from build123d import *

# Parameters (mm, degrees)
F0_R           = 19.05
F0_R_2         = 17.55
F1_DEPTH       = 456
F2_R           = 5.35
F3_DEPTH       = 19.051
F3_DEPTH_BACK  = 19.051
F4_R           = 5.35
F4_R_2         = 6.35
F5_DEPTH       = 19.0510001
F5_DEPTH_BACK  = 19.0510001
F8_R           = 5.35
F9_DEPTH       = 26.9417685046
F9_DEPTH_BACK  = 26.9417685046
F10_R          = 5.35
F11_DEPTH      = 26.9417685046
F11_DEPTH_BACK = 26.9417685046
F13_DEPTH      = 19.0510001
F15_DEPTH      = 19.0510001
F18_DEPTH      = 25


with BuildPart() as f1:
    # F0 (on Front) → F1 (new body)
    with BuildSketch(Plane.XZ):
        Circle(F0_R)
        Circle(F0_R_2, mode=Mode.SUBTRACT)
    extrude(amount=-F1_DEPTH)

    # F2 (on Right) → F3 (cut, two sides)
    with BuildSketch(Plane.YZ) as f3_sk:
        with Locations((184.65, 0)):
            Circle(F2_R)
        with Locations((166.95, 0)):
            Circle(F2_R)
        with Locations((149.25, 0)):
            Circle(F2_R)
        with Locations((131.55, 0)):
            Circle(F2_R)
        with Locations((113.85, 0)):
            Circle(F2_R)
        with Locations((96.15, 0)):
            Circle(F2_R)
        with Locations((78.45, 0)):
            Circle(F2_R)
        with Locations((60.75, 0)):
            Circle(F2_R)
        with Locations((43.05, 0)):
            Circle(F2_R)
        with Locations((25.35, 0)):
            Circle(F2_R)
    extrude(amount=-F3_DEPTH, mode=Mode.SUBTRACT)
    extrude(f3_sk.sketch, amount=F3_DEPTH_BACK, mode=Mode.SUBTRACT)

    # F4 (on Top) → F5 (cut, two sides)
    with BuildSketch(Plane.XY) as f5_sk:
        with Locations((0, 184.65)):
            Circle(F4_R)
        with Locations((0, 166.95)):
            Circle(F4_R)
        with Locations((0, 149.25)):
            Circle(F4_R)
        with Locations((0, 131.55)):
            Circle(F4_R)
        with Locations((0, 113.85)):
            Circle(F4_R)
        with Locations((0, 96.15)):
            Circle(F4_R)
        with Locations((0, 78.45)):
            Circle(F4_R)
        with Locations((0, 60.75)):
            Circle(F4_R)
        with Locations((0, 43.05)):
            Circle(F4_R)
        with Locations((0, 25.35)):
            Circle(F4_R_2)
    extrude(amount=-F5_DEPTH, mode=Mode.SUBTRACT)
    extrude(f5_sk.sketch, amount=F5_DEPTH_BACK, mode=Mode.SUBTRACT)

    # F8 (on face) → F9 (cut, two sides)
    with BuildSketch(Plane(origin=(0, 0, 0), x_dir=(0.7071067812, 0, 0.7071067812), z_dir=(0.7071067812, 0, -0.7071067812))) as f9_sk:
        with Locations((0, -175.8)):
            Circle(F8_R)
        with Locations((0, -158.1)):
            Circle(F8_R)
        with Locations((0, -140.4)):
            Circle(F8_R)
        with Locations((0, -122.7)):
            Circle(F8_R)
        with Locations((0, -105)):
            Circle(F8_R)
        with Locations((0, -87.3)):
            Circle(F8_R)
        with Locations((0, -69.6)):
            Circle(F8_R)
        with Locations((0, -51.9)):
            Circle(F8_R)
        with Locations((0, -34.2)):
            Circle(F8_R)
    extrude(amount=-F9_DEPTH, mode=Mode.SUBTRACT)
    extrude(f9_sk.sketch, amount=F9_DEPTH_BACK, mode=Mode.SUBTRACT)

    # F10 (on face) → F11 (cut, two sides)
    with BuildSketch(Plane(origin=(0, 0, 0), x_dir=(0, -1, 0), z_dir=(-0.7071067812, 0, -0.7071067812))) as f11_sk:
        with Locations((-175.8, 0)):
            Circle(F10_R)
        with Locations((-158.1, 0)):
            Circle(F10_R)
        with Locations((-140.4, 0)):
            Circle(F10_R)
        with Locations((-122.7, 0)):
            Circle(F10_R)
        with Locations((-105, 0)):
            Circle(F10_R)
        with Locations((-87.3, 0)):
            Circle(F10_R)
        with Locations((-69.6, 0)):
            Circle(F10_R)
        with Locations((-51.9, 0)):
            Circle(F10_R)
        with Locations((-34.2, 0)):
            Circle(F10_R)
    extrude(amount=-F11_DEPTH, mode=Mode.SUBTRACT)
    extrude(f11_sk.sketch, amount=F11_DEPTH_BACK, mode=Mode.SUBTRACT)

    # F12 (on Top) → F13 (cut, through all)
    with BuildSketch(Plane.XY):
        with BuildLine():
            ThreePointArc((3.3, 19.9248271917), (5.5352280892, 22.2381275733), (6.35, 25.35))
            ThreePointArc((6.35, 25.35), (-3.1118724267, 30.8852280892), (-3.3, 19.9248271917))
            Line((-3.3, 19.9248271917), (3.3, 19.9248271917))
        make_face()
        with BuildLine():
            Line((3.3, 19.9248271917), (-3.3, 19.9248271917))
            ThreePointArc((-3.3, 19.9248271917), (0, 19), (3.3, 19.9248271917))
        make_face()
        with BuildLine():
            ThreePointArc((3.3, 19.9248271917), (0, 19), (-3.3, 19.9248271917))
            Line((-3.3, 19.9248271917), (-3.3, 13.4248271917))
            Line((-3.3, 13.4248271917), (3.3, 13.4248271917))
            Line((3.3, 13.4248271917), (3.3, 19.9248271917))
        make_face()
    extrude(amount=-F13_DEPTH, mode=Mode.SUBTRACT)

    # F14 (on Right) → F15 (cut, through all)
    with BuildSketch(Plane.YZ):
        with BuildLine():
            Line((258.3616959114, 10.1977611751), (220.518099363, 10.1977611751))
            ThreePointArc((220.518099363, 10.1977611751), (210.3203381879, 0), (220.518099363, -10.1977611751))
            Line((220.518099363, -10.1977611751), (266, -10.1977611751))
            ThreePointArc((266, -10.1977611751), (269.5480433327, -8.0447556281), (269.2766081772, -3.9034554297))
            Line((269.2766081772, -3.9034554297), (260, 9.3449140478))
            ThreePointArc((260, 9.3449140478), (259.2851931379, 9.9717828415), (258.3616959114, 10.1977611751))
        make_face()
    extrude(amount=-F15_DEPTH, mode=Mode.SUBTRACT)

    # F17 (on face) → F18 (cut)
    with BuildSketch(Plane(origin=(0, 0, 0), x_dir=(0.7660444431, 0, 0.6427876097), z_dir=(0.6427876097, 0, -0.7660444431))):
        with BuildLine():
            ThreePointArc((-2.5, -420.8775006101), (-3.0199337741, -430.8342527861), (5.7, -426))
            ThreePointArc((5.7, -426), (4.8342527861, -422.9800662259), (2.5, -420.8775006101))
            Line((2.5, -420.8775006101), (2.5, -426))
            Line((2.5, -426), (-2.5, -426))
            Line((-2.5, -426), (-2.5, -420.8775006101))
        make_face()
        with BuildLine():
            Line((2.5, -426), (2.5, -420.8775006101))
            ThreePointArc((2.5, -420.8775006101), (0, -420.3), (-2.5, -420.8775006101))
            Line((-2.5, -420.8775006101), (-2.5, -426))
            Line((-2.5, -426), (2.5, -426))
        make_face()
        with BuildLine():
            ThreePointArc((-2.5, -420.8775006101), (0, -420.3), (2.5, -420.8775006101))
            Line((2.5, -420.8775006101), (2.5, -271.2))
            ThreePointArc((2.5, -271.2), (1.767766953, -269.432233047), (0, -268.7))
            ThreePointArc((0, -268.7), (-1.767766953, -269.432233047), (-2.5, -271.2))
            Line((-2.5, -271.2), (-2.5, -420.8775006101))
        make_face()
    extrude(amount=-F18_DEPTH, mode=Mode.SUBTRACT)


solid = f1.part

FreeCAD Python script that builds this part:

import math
import FreeCAD as App
import Part
import Sketcher

V = App.Vector
Q = App.Units.Quantity

doc = App.newDocument("Part")
params = doc.addObject("Spreadsheet::Sheet", "Params")
for row, (alias, value) in enumerate([
    ("sketch1_diameter", "38.1 mm"),
    ("sketch1_diameter2", "35.1 mm"),
    ("pad1_length", "456 mm"),
    ("sketch2_diameter", "10.7 mm"),
    ("sketch3_diameter", "10.7 mm"),
    ("sketch3_diameter2", "12.7 mm"),
    ("sketch4_diameter", "10.7 mm"),
    ("sketch5_diameter", "10.7 mm"),
    ("sketch6_radius", "6.35 mm"),
    ("sketch6_width", "6.6 mm"),
    ("sketch6_height", "6.5 mm"),
    ("sketch7_radius", "4 mm"),
    ("sketch7_radius2", "2 mm"),
    ("sketch8_radius", "5.7 mm"),
    ("sketch8_radius2", "2.5 mm"),
    ("pocket7_length", "25 mm"),
], start=1):
    params.set(f"A{row}", alias)
    params.set(f"B{row}", "=" + value)
    params.setAlias(f"B{row}", alias)

body = doc.addObject("PartDesign::Body", "Body")

sketch1 = body.newObject("Sketcher::SketchObject", "Sketch")
sketch1.AttachmentSupport = (doc.getObject("XZ_Plane"), [""])
sketch1.MapMode = "FlatFace"
sketch1.addGeometry([
    Part.Circle(V(0, 0, 0), V(0, 0, 1), 19.05),
    Part.Circle(V(0, 0, 0), V(0, 0, 1), 17.55),
], False)
sketch1.addConstraint([
    Sketcher.Constraint("Coincident", 0, 3, -1, 1),
    Sketcher.Constraint("Coincident", 1, 3, -1, 1),
    Sketcher.Constraint("Diameter", 0, Q("38.1 mm")),
    Sketcher.Constraint("Diameter", 1, Q("35.1 mm")),
])
sketch1.setExpression("Constraints[2]", "Params.sketch1_diameter")
sketch1.setExpression("Constraints[3]", "Params.sketch1_diameter2")
pad1 = body.newObject("PartDesign::Pad", "Pad")
pad1.Profile = sketch1
pad1.setExpression("Length", "Params.pad1_length")
pad1.Reversed = True

sketch2 = body.newObject("Sketcher::SketchObject", "Sketch001")
sketch2.AttachmentSupport = (doc.getObject("YZ_Plane"), [""])
sketch2.MapMode = "FlatFace"
sketch2.addGeometry([
    Part.Circle(V(184.65, 0, 0), V(0, 0, 1), 5.35),
    Part.Circle(V(166.95, 0, 0), V(0, 0, 1), 5.35),
    Part.Circle(V(149.25, 0, 0), V(0, 0, 1), 5.35),
    Part.Circle(V(131.55, 0, 0), V(0, 0, 1), 5.35),
    Part.Circle(V(113.85, 0, 0), V(0, 0, 1), 5.35),
    Part.Circle(V(96.15, 0, 0), V(0, 0, 1), 5.35),
    Part.Circle(V(78.45, 0, 0), V(0, 0, 1), 5.35),
    Part.Circle(V(60.75, 0, 0), V(0, 0, 1), 5.35),
    Part.Circle(V(43.05, 0, 0), V(0, 0, 1), 5.35),
    Part.Circle(V(25.35, 0, 0), V(0, 0, 1), 5.35),
], False)
sketch2.addConstraint([
    Sketcher.Constraint("Equal", 0, 1),
    Sketcher.Constraint("Equal", 1, 2),
    Sketcher.Constraint("Equal", 2, 3),
    Sketcher.Constraint("Equal", 3, 4),
    Sketcher.Constraint("Equal", 4, 5),
    Sketcher.Constraint("Equal", 5, 6),
    Sketcher.Constraint("Equal", 6, 7),
    Sketcher.Constraint("Equal", 7, 8),
    Sketcher.Constraint("Equal", 8, 9),
    Sketcher.Constraint("PointOnObject", 0, 3, -1),
    Sketcher.Constraint("PointOnObject", 1, 3, -1),
    Sketcher.Constraint("PointOnObject", 2, 3, -1),
    Sketcher.Constraint("PointOnObject", 3, 3, -1),
    Sketcher.Constraint("PointOnObject", 4, 3, -1),
    Sketcher.Constraint("PointOnObject", 5, 3, -1),
    Sketcher.Constraint("PointOnObject", 6, 3, -1),
    Sketcher.Constraint("PointOnObject", 7, 3, -1),
    Sketcher.Constraint("PointOnObject", 8, 3, -1),
    Sketcher.Constraint("PointOnObject", 9, 3, -1),
    Sketcher.Constraint("Diameter", 0, Q("10.7 mm")),
    Sketcher.Constraint("DistanceX", 1, 3, 0, 3, Q("17.7 mm")),
    Sketcher.Constraint("DistanceX", 2, 3, 1, 3, Q("17.7 mm")),
    Sketcher.Constraint("DistanceX", 3, 3, 2, 3, Q("17.7 mm")),
    Sketcher.Constraint("DistanceX", 4, 3, 3, 3, Q("17.7 mm")),
    Sketcher.Constraint("DistanceX", 5, 3, 4, 3, Q("17.7 mm")),
    Sketcher.Constraint("DistanceX", 6, 3, 5, 3, Q("17.7 mm")),
    Sketcher.Constraint("DistanceX", 7, 3, 6, 3, Q("17.7 mm")),
    Sketcher.Constraint("DistanceX", 8, 3, 7, 3, Q("17.7 mm")),
    Sketcher.Constraint("DistanceX", 9, 3, 8, 3, Q("17.7 mm")),
    Sketcher.Constraint("DistanceX", -1, 1, 0, 3, Q("184.65 mm")),
])
sketch2.setExpression("Constraints[19]", "Params.sketch2_diameter")
pocket1 = body.newObject("PartDesign::Pocket", "Pocket")
pocket1.Profile = sketch2
pocket1.Type = "ThroughAll"
pocket1.Midplane = True

sketch3 = body.newObject("Sketcher::SketchObject", "Sketch002")
sketch3.AttachmentSupport = (doc.getObject("XY_Plane"), [""])
sketch3.MapMode = "FlatFace"
sketch3.addGeometry([
    Part.Circle(V(0, 184.65, 0), V(0, 0, 1), 5.35),
    Part.Circle(V(0, 166.95, 0), V(0, 0, 1), 5.35),
    Part.Circle(V(0, 149.25, 0), V(0, 0, 1), 5.35),
    Part.Circle(V(0, 131.55, 0), V(0, 0, 1), 5.35),
    Part.Circle(V(0, 113.85, 0), V(0, 0, 1), 5.35),
    Part.Circle(V(0, 96.15, 0), V(0, 0, 1), 5.35),
    Part.Circle(V(0, 78.45, 0), V(0, 0, 1), 5.35),
    Part.Circle(V(0, 60.75, 0), V(0, 0, 1), 5.35),
    Part.Circle(V(0, 43.05, 0), V(0, 0, 1), 5.35),
    Part.Circle(V(0, 25.35, 0), V(0, 0, 1), 6.35),
], False)
sketch3.addConstraint([
    Sketcher.Constraint("Equal", 0, 1),
    Sketcher.Constraint("Equal", 1, 2),
    Sketcher.Constraint("Equal", 2, 3),
    Sketcher.Constraint("Equal", 3, 4),
    Sketcher.Constraint("Equal", 4, 5),
    Sketcher.Constraint("Equal", 5, 6),
    Sketcher.Constraint("Equal", 6, 7),
    Sketcher.Constraint("Equal", 7, 8),
    Sketcher.Constraint("PointOnObject", 0, 3, -2),
    Sketcher.Constraint("PointOnObject", 1, 3, -2),
    Sketcher.Constraint("PointOnObject", 2, 3, -2),
    Sketcher.Constraint("PointOnObject", 3, 3, -2),
    Sketcher.Constraint("PointOnObject", 4, 3, -2),
    Sketcher.Constraint("PointOnObject", 5, 3, -2),
    Sketcher.Constraint("PointOnObject", 6, 3, -2),
    Sketcher.Constraint("PointOnObject", 7, 3, -2),
    Sketcher.Constraint("PointOnObject", 8, 3, -2),
    Sketcher.Constraint("PointOnObject", 9, 3, -2),
    Sketcher.Constraint("Diameter", 0, Q("10.7 mm")),
    Sketcher.Constraint("Diameter", 9, Q("12.7 mm")),
    Sketcher.Constraint("DistanceY", 1, 3, 0, 3, Q("17.7 mm")),
    Sketcher.Constraint("DistanceY", 2, 3, 1, 3, Q("17.7 mm")),
    Sketcher.Constraint("DistanceY", 3, 3, 2, 3, Q("17.7 mm")),
    Sketcher.Constraint("DistanceY", 4, 3, 3, 3, Q("17.7 mm")),
    Sketcher.Constraint("DistanceY", 5, 3, 4, 3, Q("17.7 mm")),
    Sketcher.Constraint("DistanceY", 6, 3, 5, 3, Q("17.7 mm")),
    Sketcher.Constraint("DistanceY", 7, 3, 6, 3, Q("17.7 mm")),
    Sketcher.Constraint("DistanceY", 8, 3, 7, 3, Q("17.7 mm")),
    Sketcher.Constraint("DistanceY", 9, 3, 8, 3, Q("17.7 mm")),
    Sketcher.Constraint("DistanceY", -1, 1, 0, 3, Q("184.65 mm")),
])
sketch3.setExpression("Constraints[18]", "Params.sketch3_diameter")
sketch3.setExpression("Constraints[19]", "Params.sketch3_diameter2")
pocket2 = body.newObject("PartDesign::Pocket", "Pocket001")
pocket2.Profile = sketch3
pocket2.Type = "ThroughAll"
pocket2.Midplane = True

sketch4 = body.newObject("Sketcher::SketchObject", "Sketch003")
sketch4.Placement = App.Placement(V(0, 0, 0), App.Rotation(V(0.707106781, 0, 0.707106781), V(0, -0.999999999, 0), V(0.707106781, 0, -0.707106781), "ZXY"))
sketch4.addGeometry([
    Part.Circle(V(0, -175.8, 0), V(0, 0, 1), 5.35),
    Part.Circle(V(0, -158.1, 0), V(0, 0, 1), 5.35),
    Part.Circle(V(0, -140.4, 0), V(0, 0, 1), 5.35),
    Part.Circle(V(0, -122.7, 0), V(0, 0, 1), 5.35),
    Part.Circle(V(0, -105, 0), V(0, 0, 1), 5.35),
    Part.Circle(V(0, -87.3, 0), V(0, 0, 1), 5.35),
    Part.Circle(V(0, -69.6, 0), V(0, 0, 1), 5.35),
    Part.Circle(V(0, -51.9, 0), V(0, 0, 1), 5.35),
    Part.Circle(V(0, -34.2, 0), V(0, 0, 1), 5.35),
], False)
sketch4.addConstraint([
    Sketcher.Constraint("Equal", 0, 1),
    Sketcher.Constraint("Equal", 1, 2),
    Sketcher.Constraint("Equal", 2, 3),
    Sketcher.Constraint("Equal", 3, 4),
    Sketcher.Constraint("Equal", 4, 5),
    Sketcher.Constraint("Equal", 5, 6),
    Sketcher.Constraint("Equal", 6, 7),
    Sketcher.Constraint("Equal", 7, 8),
    Sketcher.Constraint("PointOnObject", 0, 3, -2),
    Sketcher.Constraint("PointOnObject", 1, 3, -2),
    Sketcher.Constraint("PointOnObject", 2, 3, -2),
    Sketcher.Constraint("PointOnObject", 3, 3, -2),
    Sketcher.Constraint("PointOnObject", 4, 3, -2),
    Sketcher.Constraint("PointOnObject", 5, 3, -2),
    Sketcher.Constraint("PointOnObject", 6, 3, -2),
    Sketcher.Constraint("PointOnObject", 7, 3, -2),
    Sketcher.Constraint("PointOnObject", 8, 3, -2),
    Sketcher.Constraint("Diameter", 0, Q("10.7 mm")),
    Sketcher.Constraint("DistanceY", 4, 3, -1, 1, Q("105 mm")),
    Sketcher.Constraint("DistanceY", 0, 3, -1, 1, Q("175.8 mm")),
    Sketcher.Constraint("DistanceY", 1, 3, -1, 1, Q("158.1 mm")),
    Sketcher.Constraint("DistanceY", 2, 3, -1, 1, Q("140.4 mm")),
    Sketcher.Constraint("DistanceY", 3, 3, -1, 1, Q("122.7 mm")),
    Sketcher.Constraint("DistanceY", 5, 3, -1, 1, Q("87.3 mm")),
    Sketcher.Constraint("DistanceY", 6, 3, -1, 1, Q("69.6 mm")),
    Sketcher.Constraint("DistanceY", 7, 3, -1, 1, Q("51.9 mm")),
    Sketcher.Constraint("DistanceY", 8, 3, -1, 1, Q("34.2 mm")),
])
sketch4.setExpression("Constraints[17]", "Params.sketch4_diameter")
pocket3 = body.newObject("PartDesign::Pocket", "Pocket002")
pocket3.Profile = sketch4
pocket3.Type = "ThroughAll"
pocket3.Midplane = True

sketch5 = body.newObject("Sketcher::SketchObject", "Sketch004")
sketch5.Placement = App.Placement(V(0, 0, 0), App.Rotation(V(0, -1, 0), V(-0.707106781, 0, 0.707106781), V(-0.707106781, 0, -0.707106781), "ZXY"))
sketch5.addGeometry([
    Part.Circle(V(-175.8, 0, 0), V(0, 0, 1), 5.35),
    Part.Circle(V(-158.1, 0, 0), V(0, 0, 1), 5.35),
    Part.Circle(V(-140.4, 0, 0), V(0, 0, 1), 5.35),
    Part.Circle(V(-122.7, 0, 0), V(0, 0, 1), 5.35),
    Part.Circle(V(-105, 0, 0), V(0, 0, 1), 5.35),
    Part.Circle(V(-87.3, 0, 0), V(0, 0, 1), 5.35),
    Part.Circle(V(-69.6, 0, 0), V(0, 0, 1), 5.35),
    Part.Circle(V(-51.9, 0, 0), V(0, 0, 1), 5.35),
    Part.Circle(V(-34.2, 0, 0), V(0, 0, 1), 5.35),
], False)
sketch5.addConstraint([
    Sketcher.Constraint("Equal", 0, 1),
    Sketcher.Constraint("Equal", 1, 2),
    Sketcher.Constraint("Equal", 2, 3),
    Sketcher.Constraint("Equal", 3, 4),
    Sketcher.Constraint("Equal", 4, 5),
    Sketcher.Constraint("Equal", 5, 6),
    Sketcher.Constraint("Equal", 6, 7),
    Sketcher.Constraint("Equal", 7, 8),
    Sketcher.Constraint("PointOnObject", 0, 3, -1),
    Sketcher.Constraint("PointOnObject", 1, 3, -1),
    Sketcher.Constraint("PointOnObject", 2, 3, -1),
    Sketcher.Constraint("PointOnObject", 3, 3, -1),
    Sketcher.Constraint("PointOnObject", 4, 3, -1),
    Sketcher.Constraint("PointOnObject", 5, 3, -1),
    Sketcher.Constraint("PointOnObject", 6, 3, -1),
    Sketcher.Constraint("PointOnObject", 7, 3, -1),
    Sketcher.Constraint("PointOnObject", 8, 3, -1),
    Sketcher.Constraint("Diameter", 0, Q("10.7 mm")),
    Sketcher.Constraint("DistanceX", 4, 3, -1, 1, Q("105 mm")),
    Sketcher.Constraint("DistanceX", 0, 3, -1, 1, Q("175.8 mm")),
    Sketcher.Constraint("DistanceX", 1, 3, -1, 1, Q("158.1 mm")),
    Sketcher.Constraint("DistanceX", 2, 3, -1, 1, Q("140.4 mm")),
    Sketcher.Constraint("DistanceX", 3, 3, -1, 1, Q("122.7 mm")),
    Sketcher.Constraint("DistanceX", 5, 3, -1, 1, Q("87.3 mm")),
    Sketcher.Constraint("DistanceX", 6, 3, -1, 1, Q("69.6 mm")),
    Sketcher.Constraint("DistanceX", 7, 3, -1, 1, Q("51.9 mm")),
    Sketcher.Constraint("DistanceX", 8, 3, -1, 1, Q("34.2 mm")),
])
sketch5.setExpression("Constraints[17]", "Params.sketch5_diameter")
pocket4 = body.newObject("PartDesign::Pocket", "Pocket003")
pocket4.Profile = sketch5
pocket4.Type = "ThroughAll"
pocket4.Midplane = True

sketch6 = body.newObject("Sketcher::SketchObject", "Sketch005")
sketch6.AttachmentSupport = (doc.getObject("XY_Plane"), [""])
sketch6.MapMode = "FlatFace"
sketch6.addGeometry([
    Part.ArcOfCircle(Part.Circle(V(0, 25.35, 0), V(0, 0, 1), 6.35), math.radians(-58.688873), math.radians(0)),
    Part.ArcOfCircle(Part.Circle(V(0, 25.35, 0), V(0, 0, 1), 6.35), math.radians(0), math.radians(238.688873)),
    Part.LineSegment(V(-3.3, 19.924827, 0), V(-3.3, 13.424827, 0)),
    Part.LineSegment(V(-3.3, 13.424827, 0), V(3.3, 13.424827, 0)),
    Part.LineSegment(V(3.3, 13.424827, 0), V(3.3, 19.924827, 0)),
], False)
sketch6.addConstraint([
    Sketcher.Constraint("Tangent", 0, 2, 1, 1),
    Sketcher.Constraint("Coincident", 1, 2, 2, 1),
    Sketcher.Constraint("Coincident", 2, 2, 3, 1),
    Sketcher.Constraint("Coincident", 3, 2, 4, 1),
    Sketcher.Constraint("Coincident", 4, 2, 0, 1),
    Sketcher.Constraint("Vertical", 2),
    Sketcher.Constraint("Horizontal", 3),
    Sketcher.Constraint("Vertical", 4),
    Sketcher.Constraint("Equal", 0, 1),
    Sketcher.Constraint("Symmetric", 1, 2, 4, 2, -2),
    Sketcher.Constraint("Horizontal", 1, 3, 0, 2),
    Sketcher.Constraint("Radius", 0, Q("6.35 mm")),
    Sketcher.Constraint("DistanceX", 3, 1, 3, 2, Q("6.6 mm")),
    Sketcher.Constraint("DistanceY", 2, 2, 2, 1, Q("6.5 mm")),
    Sketcher.Constraint("DistanceY", -1, 1, 0, 3, Q("25.35 mm")),
])
sketch6.setExpression("Constraints[11]", "Params.sketch6_radius")
sketch6.setExpression("Constraints[12]", "Params.sketch6_width")
sketch6.setExpression("Constraints[13]", "Params.sketch6_height")
pocket5 = body.newObject("PartDesign::Pocket", "Pocket004")
pocket5.Profile = sketch6
pocket5.Type = "ThroughAll"

sketch7 = body.newObject("Sketcher::SketchObject", "Sketch006")
sketch7.AttachmentSupport = (doc.getObject("YZ_Plane"), [""])
sketch7.MapMode = "FlatFace"
sketch7.addGeometry([
    Part.LineSegment(V(258.361696, 10.197761, 0), V(220.518099, 10.197761, 0)),
    Part.ArcOfCircle(Part.Circle(V(220.518099, 0, 0), V(0, 0, 1), 10.197761), math.radians(90), math.radians(270)),
    Part.LineSegment(V(220.518099, -10.197761, 0), V(266, -10.197761, 0)),
    Part.ArcOfCircle(Part.Circle(V(266, -6.197761, 0), V(0, 0, 1), 4), math.radians(-90), math.radians(35)),
    Part.LineSegment(V(269.276608, -3.903455, 0), V(260, 9.344914, 0)),
    Part.ArcOfCircle(Part.Circle(V(258.361696, 8.197761, 0), V(0, 0, 1), 2), math.radians(35), math.radians(90)),
], False)
sketch7.addConstraint([
    Sketcher.Constraint("Tangent", 0, 2, 1, 1),
    Sketcher.Constraint("Tangent", 1, 2, 2, 1),
    Sketcher.Constraint("Tangent", 2, 2, 3, 1),
    Sketcher.Constraint("Tangent", 3, 2, 4, 1),
    Sketcher.Constraint("Tangent", 4, 2, 5, 1),
    Sketcher.Constraint("Tangent", 5, 2, 0, 1),
    Sketcher.Constraint("Horizontal", 0),
    Sketcher.Constraint("Horizontal", 2),
    Sketcher.Constraint("PointOnObject", 1, 3, -1),
    Sketcher.Constraint("Radius", 3, Q("4 mm")),
    Sketcher.Constraint("Radius", 5, Q("2 mm")),
    Sketcher.Constraint("Angle", 4, Q("125 deg")),
    Sketcher.Constraint("DistanceX", -1, 1, 3, 3, Q("266 mm")),
    Sketcher.Constraint("DistanceX", -1, 1, 4, 2, Q("260 mm")),
    Sketcher.Constraint("DistanceX", 2, 1, 2, 2, Q("45.481901 mm")),
])
sketch7.setExpression("Constraints[9]", "Params.sketch7_radius")
sketch7.setExpression("Constraints[10]", "Params.sketch7_radius2")
pocket6 = body.newObject("PartDesign::Pocket", "Pocket005")
pocket6.Profile = sketch7
pocket6.Type = "ThroughAll"

sketch8 = body.newObject("Sketcher::SketchObject", "Sketch007")
sketch8.Placement = App.Placement(V(0, 0, 0), App.Rotation(V(0.766044443, 0, 0.64278761), V(0, -1, 0), V(0.64278761, 0, -0.766044443), "ZXY"))
sketch8.addGeometry([
    Part.ArcOfCircle(Part.Circle(V(0, -426, 0), V(0, 0, 1), 5.7), math.radians(116.014366), math.radians(360)),
    Part.ArcOfCircle(Part.Circle(V(0, -426, 0), V(0, 0, 1), 5.7), math.radians(0), math.radians(63.985634)),
    Part.LineSegment(V(2.5, -420.877501, 0), V(2.5, -271.2, 0)),
    Part.ArcOfCircle(Part.Circle(V(0, -271.2, 0), V(0, 0, 1), 2.5), math.radians(0), math.radians(90)),
    Part.ArcOfCircle(Part.Circle(V(0, -271.2, 0), V(0, 0, 1), 2.5), math.radians(90), math.radians(180)),
    Part.LineSegment(V(-2.5, -271.2, 0), V(-2.5, -420.877501, 0)),
], False)
sketch8.addConstraint([
    Sketcher.Constraint("Tangent", 0, 2, 1, 1),
    Sketcher.Constraint("Coincident", 1, 2, 2, 1),
    Sketcher.Constraint("Tangent", 2, 2, 3, 1),
    Sketcher.Constraint("Tangent", 3, 2, 4, 1),
    Sketcher.Constraint("Tangent", 4, 2, 5, 1),
    Sketcher.Constraint("Coincident", 5, 2, 0, 1),
    Sketcher.Constraint("Vertical", 2),
    Sketcher.Constraint("Vertical", 5),
    Sketcher.Constraint("Equal", 0, 1),
    Sketcher.Constraint("Equal", 3, 4),
    Sketcher.Constraint("Symmetric", 1, 2, 5, 2, -2),
    Sketcher.Constraint("PointOnObject", 3, 2, -2),
    Sketcher.Constraint("Horizontal", 1, 3, 0, 2),
    Sketcher.Constraint("Radius", 0, Q("5.7 mm")),
    Sketcher.Constraint("Radius", 3, Q("2.5 mm")),
    Sketcher.Constraint("DistanceY", 0, 3, -1, 1, Q("426 mm")),
    Sketcher.Constraint("DistanceY", 3, 3, -1, 1, Q("271.2 mm")),
])
sketch8.setExpression("Constraints[13]", "Params.sketch8_radius")
sketch8.setExpression("Constraints[14]", "Params.sketch8_radius2")
pocket7 = body.newObject("PartDesign::Pocket", "Pocket006")
pocket7.Profile = sketch8
pocket7.setExpression("Length", "Params.pocket7_length")

doc.recompute()
